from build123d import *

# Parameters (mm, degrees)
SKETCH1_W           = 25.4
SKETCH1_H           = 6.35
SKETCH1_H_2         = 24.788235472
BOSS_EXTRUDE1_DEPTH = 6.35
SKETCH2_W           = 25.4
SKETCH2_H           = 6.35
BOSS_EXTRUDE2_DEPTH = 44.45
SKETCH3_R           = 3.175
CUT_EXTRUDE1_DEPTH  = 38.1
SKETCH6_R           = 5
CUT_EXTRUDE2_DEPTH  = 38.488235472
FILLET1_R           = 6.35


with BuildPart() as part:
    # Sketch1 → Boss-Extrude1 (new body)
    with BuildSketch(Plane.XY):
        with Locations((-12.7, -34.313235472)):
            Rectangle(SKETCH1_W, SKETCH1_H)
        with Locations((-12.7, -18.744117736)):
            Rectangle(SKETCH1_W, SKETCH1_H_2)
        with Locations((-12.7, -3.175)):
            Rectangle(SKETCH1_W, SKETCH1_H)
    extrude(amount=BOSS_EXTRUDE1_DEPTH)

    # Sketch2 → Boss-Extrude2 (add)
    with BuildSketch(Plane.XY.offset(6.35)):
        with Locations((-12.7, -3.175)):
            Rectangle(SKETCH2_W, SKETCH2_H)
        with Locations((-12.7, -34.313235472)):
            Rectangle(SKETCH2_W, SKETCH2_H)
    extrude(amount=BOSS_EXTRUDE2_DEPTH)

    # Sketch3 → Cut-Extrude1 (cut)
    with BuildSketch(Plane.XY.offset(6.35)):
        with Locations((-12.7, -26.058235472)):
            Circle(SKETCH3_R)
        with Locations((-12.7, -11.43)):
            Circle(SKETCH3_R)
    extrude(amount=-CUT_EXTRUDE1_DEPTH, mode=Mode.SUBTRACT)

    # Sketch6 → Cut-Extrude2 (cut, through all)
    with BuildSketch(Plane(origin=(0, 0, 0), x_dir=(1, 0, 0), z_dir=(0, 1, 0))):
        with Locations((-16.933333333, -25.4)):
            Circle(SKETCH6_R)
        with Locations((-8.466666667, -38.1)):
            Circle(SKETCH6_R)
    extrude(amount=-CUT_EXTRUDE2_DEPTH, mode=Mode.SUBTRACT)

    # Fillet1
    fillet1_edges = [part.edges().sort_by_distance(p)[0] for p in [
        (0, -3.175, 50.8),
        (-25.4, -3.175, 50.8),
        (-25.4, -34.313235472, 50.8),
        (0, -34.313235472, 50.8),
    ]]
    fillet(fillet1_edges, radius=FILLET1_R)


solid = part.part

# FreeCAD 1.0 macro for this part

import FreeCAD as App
import Part
import Sketcher
from FreeCAD import Vector
Q = App.Units.Quantity


def edges_at(feature, points):
    """Names of the edges that pass closest to the given points."""
    edges = feature.Shape.Edges
    near = lambda p: min(range(len(edges)), key=lambda i: edges[i].distToShape(Part.Vertex(*p))[0])
    return sorted({f"Edge{near(p) + 1}" for p in points})

doc = App.newDocument("Part")
body = doc.addObject("PartDesign::Body", "Body")

sketch1 = doc.addObject("Sketcher::SketchObject", "Sketch")
body.addObject(sketch1)
sketch1.AttachmentSupport = (doc.XY_Plane, [""])
sketch1.MapMode = "FlatFace"
sketch1.addGeometry([
    Part.LineSegment(Vector(-25.4, -37.488235, 0), Vector(0, -37.488235, 0)),
    Part.LineSegment(Vector(0, -37.488235, 0), Vector(0, 0, 0)),
    Part.LineSegment(Vector(0, 0, 0), Vector(-25.4, 0, 0)),
    Part.LineSegment(Vector(-25.4, 0, 0), Vector(-25.4, -37.488235, 0)),
], False)
sketch1.addConstraint([
    Sketcher.Constraint("Coincident", 0, 2, 1, 1),
    Sketcher.Constraint("Coincident", 1, 2, 2, 1),
    Sketcher.Constraint("Coincident", 2, 2, 3, 1),
    Sketcher.Constraint("Coincident", 3, 2, 0, 1),
    Sketcher.Constraint("Horizontal", 0),
    Sketcher.Constraint("Vertical", 1),
    Sketcher.Constraint("Horizontal", 2),
    Sketcher.Constraint("Vertical", 3),
    Sketcher.Constraint("Coincident", 1, 2, -1, 1),
    Sketcher.Constraint("DistanceX", 0, 1, 0, 2, Q("1 in")),
    Sketcher.Constraint("DistanceY", 1, 1, 1, 2, 37.488235),
])
pad1 = doc.addObject("PartDesign::Pad", "Pad")
body.addObject(pad1)
pad1.Profile = sketch1
pad1.Length = Q("0.25 in")

sketch2 = doc.addObject("Sketcher::SketchObject", "Sketch001")
body.addObject(sketch2)
sketch2.AttachmentSupport = (doc.XY_Plane, [""])
sketch2.MapMode = "FlatFace"
sketch2.AttachmentOffset = App.Placement(Vector(0, 0, 0.25 * 25.4), App.Rotation())
sketch2.addGeometry([
    Part.LineSegment(Vector(-25.4, 0, 0), Vector(-25.4, -6.35, 0)),
    Part.LineSegment(Vector(-25.4, -6.35, 0), Vector(0, -6.35, 0)),
    Part.LineSegment(Vector(0, -6.35, 0), Vector(0, 0, 0)),
    Part.LineSegment(Vector(0, 0, 0), Vector(-25.4, 0, 0)),
    Part.LineSegment(Vector(-25.4, -31.138235, 0), Vector(-25.4, -37.488235, 0)),
    Part.LineSegment(Vector(-25.4, -37.488235, 0), Vector(0, -37.488235, 0)),
    Part.LineSegment(Vector(0, -37.488235, 0), Vector(0, -31.138235, 0)),
    Part.LineSegment(Vector(0, -31.138235, 0), Vector(-25.4, -31.138235, 0)),
], False)
sketch2.addConstraint([
    Sketcher.Constraint("Coincident", 0, 2, 1, 1),
    Sketcher.Constraint("Coincident", 1, 2, 2, 1),
    Sketcher.Constraint("Coincident", 2, 2, 3, 1),
    Sketcher.Constraint("Coincident", 3, 2, 0, 1),
    Sketcher.Constraint("Coincident", 4, 2, 5, 1),
    Sketcher.Constraint("Coincident", 5, 2, 6, 1),
    Sketcher.Constraint("Coincident", 6, 2, 7, 1),
    Sketcher.Constraint("Coincident", 7, 2, 4, 1),
    Sketcher.Constraint("Vertical", 0),
    Sketcher.Constraint("Horizontal", 1),
    Sketcher.Constraint("Vertical", 2),
    Sketcher.Constraint("Horizontal", 3),
    Sketcher.Constraint("Vertical", 4),
    Sketcher.Constraint("Horizontal", 5),
    Sketcher.Constraint("Vertical", 6),
    Sketcher.Constraint("Horizontal", 7),
    Sketcher.Constraint("Coincident", 2, 2, -1, 1),
    Sketcher.Constraint("PointOnObject", 5, 2, -2),
    Sketcher.Constraint("Vertical", 3, 2, 4, 2),
    Sketcher.Constraint("Equal", 2, 4),
    Sketcher.Constraint("DistanceX", 1, 1, 1, 2, Q("1 in")),
    Sketcher.Constraint("DistanceY", 0, 2, 0, 1, Q("0.25 in")),
    Sketcher.Constraint("DistanceY", 4, 2, -1, 1, 37.488235),
])
pad2 = doc.addObject("PartDesign::Pad", "Pad001")
body.addObject(pad2)
pad2.Profile = sketch2
pad2.Length = Q("1.75 in")

sketch3 = doc.addObject("Sketcher::SketchObject", "Sketch002")
body.addObject(sketch3)
sketch3.AttachmentSupport = (doc.XY_Plane, [""])
sketch3.MapMode = "FlatFace"
sketch3.AttachmentOffset = App.Placement(Vector(0, 0, 0.25 * 25.4), App.Rotation())
sketch3.addGeometry([
    Part.Circle(Vector(-12.7, -26.058235, 0), Vector(0, 0, 1), 3.175),
    Part.Circle(Vector(-12.7, -11.43, 0), Vector(0, 0, 1), 3.175),
], False)
sketch3.addConstraint([
    Sketcher.Constraint("Equal", 0, 1),
    Sketcher.Constraint("Vertical", 0, 3, 1, 3),
    Sketcher.Constraint("Diameter", 0, Q("0.25 in")),
    Sketcher.Constraint("DistanceX", 0, 3, -1, 1, Q("0.5 in")),
    Sketcher.Constraint("DistanceY", 1, 3, -1, 1, Q("0.45 in")),
    Sketcher.Constraint("DistanceY", 0, 3, -1, 1, 26.058235),
])
pocket1 = doc.addObject("PartDesign::Pocket", "Pocket")
body.addObject(pocket1)
pocket1.Profile = sketch3
pocket1.Length = Q("1.5 in")

sketch4 = doc.addObject("Sketcher::SketchObject", "Sketch003")
body.addObject(sketch4)
sketch4.AttachmentSupport = (doc.XZ_Plane, [""])
sketch4.MapMode = "FlatFace"
sketch4.addGeometry([
    Part.Circle(Vector(-16.933333, 25.4, 0), Vector(0, 0, 1), 5),
    Part.Circle(Vector(-8.466667, 38.1, 0), Vector(0, 0, 1), 5),
], False)
sketch4.addConstraint([
    Sketcher.Constraint("Equal", 0, 1),
    Sketcher.Constraint("DistanceY", -1, 1, 0, 3, Q("1 in")),
    Sketcher.Constraint("DistanceY", -1, 1, 1, 3, Q("1.5 in")),
    Sketcher.Constraint("Diameter", 0, 10.0),
    Sketcher.Constraint("DistanceX", 0, 3, -1, 1, 16.933333),
    Sketcher.Constraint("DistanceX", 1, 3, -1, 1, 8.466667),
])
pocket2 = doc.addObject("PartDesign::Pocket", "Pocket001")
body.addObject(pocket2)
pocket2.Profile = sketch4
pocket2.Type = "ThroughAll"
pocket2.Reversed = True
doc.recompute()

fillet = doc.addObject("PartDesign::Fillet", "Fillet")
body.addObject(fillet)
fillet.Base = (pocket2, edges_at(pocket2, [
    (0, -3.175, 50.8),
    (-25.4, -3.175, 50.8),
    (-25.4, -34.313, 50.8),
    (0, -34.313, 50.8),
]))
fillet.Radius = Q("0.25 in")

doc.recompute()
